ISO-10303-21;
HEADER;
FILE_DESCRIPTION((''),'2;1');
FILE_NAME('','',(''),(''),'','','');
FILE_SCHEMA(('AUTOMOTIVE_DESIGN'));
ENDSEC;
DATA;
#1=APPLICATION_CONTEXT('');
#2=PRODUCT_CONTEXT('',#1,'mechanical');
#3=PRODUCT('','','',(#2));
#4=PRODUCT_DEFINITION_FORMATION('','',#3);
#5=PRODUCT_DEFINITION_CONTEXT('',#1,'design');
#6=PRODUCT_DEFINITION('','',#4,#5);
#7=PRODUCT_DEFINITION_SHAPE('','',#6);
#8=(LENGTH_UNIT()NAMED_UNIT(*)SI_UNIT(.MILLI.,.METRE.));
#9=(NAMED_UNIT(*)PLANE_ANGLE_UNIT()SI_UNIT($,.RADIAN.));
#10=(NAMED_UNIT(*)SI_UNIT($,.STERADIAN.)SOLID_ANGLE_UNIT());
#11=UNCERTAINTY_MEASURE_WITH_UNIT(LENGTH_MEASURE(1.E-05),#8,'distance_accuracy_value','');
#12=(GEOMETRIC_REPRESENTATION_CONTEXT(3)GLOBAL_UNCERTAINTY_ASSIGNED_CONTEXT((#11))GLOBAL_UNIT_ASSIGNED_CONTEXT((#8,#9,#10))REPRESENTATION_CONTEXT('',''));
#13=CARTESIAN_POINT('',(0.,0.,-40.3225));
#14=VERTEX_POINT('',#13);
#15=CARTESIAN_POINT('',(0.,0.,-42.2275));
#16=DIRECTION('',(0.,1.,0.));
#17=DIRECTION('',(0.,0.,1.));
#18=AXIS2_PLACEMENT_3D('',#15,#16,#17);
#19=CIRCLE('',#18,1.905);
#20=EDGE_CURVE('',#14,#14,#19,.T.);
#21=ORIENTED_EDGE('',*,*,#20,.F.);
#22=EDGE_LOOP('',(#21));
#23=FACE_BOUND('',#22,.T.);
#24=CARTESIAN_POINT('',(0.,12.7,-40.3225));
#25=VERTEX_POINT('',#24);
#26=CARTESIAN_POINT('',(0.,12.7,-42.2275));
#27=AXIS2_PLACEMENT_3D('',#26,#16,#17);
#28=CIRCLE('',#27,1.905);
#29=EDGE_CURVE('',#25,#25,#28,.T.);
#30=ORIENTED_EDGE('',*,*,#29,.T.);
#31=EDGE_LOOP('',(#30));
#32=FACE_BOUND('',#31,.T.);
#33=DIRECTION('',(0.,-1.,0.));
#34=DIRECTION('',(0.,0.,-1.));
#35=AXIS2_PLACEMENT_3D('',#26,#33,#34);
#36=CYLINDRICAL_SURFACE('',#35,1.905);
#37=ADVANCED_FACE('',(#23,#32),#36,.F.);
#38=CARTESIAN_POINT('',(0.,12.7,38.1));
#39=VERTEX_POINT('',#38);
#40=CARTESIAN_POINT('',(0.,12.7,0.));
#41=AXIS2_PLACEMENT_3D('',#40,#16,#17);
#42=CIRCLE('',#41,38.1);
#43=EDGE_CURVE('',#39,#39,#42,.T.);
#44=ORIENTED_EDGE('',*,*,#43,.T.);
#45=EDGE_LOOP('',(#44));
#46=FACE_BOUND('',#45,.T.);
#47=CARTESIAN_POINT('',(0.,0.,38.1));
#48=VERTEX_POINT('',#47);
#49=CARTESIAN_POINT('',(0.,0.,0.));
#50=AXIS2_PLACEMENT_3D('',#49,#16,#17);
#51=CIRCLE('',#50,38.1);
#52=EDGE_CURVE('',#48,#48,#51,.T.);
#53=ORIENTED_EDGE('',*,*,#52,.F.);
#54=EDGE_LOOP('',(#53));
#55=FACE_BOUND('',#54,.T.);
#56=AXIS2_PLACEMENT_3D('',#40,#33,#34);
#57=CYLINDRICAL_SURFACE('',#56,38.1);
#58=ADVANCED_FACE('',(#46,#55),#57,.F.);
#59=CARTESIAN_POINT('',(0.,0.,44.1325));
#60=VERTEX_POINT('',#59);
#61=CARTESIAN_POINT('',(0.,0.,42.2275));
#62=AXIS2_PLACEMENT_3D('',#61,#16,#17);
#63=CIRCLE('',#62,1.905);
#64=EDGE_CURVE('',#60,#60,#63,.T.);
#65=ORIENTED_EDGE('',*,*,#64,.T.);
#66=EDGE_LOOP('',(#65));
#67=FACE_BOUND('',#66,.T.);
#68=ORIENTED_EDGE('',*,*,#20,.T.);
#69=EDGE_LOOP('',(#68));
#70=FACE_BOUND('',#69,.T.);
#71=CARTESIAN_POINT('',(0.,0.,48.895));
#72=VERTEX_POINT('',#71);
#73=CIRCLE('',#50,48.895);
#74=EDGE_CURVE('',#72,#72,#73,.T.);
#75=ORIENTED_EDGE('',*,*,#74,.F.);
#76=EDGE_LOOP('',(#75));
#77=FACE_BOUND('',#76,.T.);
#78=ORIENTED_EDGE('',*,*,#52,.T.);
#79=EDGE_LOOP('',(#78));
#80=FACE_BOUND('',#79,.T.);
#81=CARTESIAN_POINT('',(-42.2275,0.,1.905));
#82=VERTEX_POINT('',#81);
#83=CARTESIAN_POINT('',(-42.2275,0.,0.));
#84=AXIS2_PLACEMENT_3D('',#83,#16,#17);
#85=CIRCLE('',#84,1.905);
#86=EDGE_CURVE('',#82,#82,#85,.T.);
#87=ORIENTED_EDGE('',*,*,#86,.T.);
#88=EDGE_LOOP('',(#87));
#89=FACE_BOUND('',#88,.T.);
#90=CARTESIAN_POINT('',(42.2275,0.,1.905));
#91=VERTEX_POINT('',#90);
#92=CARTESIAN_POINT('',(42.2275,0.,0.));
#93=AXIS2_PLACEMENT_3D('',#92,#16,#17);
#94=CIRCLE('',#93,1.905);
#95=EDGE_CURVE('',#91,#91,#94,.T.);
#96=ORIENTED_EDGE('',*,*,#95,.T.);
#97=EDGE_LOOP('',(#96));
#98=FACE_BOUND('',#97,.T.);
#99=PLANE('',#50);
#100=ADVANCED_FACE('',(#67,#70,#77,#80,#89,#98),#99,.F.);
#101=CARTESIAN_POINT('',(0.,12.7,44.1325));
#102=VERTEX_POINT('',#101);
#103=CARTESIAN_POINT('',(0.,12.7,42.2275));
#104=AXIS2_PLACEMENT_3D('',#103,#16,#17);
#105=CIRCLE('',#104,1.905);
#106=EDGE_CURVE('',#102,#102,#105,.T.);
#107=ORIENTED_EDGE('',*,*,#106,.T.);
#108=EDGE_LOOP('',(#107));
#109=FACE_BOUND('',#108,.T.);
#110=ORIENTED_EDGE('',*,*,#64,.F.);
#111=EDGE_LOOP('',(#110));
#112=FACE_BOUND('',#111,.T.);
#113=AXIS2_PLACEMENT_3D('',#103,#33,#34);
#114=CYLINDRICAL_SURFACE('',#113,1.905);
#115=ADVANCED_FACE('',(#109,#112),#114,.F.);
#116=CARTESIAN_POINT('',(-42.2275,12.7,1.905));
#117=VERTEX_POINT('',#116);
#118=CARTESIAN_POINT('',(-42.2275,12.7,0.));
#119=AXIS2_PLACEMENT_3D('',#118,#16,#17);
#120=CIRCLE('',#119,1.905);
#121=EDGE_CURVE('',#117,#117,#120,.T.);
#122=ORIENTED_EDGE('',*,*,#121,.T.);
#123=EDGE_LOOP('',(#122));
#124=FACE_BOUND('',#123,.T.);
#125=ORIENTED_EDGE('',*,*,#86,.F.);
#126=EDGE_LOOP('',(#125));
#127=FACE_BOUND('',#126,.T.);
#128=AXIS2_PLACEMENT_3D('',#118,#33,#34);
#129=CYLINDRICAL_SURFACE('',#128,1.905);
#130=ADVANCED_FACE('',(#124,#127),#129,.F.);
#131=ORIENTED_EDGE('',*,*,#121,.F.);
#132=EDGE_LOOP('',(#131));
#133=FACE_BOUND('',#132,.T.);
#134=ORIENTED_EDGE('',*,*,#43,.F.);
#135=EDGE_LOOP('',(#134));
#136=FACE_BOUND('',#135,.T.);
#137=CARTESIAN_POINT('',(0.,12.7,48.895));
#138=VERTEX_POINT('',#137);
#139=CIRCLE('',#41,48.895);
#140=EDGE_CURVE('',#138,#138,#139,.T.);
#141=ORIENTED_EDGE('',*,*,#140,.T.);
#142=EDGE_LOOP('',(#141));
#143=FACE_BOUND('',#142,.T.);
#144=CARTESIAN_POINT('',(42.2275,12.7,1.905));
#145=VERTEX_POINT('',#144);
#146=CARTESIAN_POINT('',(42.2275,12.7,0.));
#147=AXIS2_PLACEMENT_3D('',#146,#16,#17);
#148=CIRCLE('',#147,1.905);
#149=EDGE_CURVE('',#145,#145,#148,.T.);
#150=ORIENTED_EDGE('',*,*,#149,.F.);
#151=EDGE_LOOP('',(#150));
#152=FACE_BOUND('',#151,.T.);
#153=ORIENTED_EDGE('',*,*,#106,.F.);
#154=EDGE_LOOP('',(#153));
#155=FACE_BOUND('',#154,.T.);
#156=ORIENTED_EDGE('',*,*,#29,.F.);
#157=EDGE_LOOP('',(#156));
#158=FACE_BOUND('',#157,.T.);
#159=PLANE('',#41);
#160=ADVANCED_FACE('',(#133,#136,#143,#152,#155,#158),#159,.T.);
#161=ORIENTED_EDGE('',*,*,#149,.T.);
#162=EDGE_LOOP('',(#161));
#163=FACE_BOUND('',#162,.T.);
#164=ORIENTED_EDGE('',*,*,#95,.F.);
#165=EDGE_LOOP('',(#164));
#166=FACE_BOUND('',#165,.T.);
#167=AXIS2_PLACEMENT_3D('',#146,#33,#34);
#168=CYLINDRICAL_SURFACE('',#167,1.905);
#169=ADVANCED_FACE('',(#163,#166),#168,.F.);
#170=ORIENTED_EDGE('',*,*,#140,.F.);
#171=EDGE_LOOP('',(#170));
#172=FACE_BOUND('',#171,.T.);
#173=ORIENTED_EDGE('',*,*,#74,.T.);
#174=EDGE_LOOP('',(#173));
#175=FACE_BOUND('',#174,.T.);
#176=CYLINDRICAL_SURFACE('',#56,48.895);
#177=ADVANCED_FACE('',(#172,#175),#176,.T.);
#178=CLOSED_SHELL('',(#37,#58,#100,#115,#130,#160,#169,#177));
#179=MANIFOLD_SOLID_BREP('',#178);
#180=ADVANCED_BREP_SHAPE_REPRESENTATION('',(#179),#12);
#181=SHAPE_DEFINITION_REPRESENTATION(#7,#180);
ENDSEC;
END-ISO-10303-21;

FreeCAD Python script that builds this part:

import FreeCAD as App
import Part
import Sketcher

V = App.Vector
Q = App.Units.Quantity

doc = App.newDocument("Part")
body = doc.addObject("PartDesign::Body", "Body")

sketch1 = doc.addObject("Sketcher::SketchObject", "Sketch")
body.addObject(sketch1)
sketch1.AttachmentSupport = (doc.XZ_Plane, [""])
sketch1.MapMode = "FlatFace"
sketch1.addGeometry(Part.Circle(V(0, 0, 0), V(0, 0, 1), 48.9), False)
sketch1.addGeometry(Part.Circle(V(0, 42.2, 0), V(0, 0, 1), 1.9), False)
sketch1.addGeometry(Part.Circle(V(-42.2, 0, 0), V(0, 0, 1), 1.9), False)
sketch1.addGeometry(Part.Circle(V(0, 0, 0), V(0, 0, 1), 38.1), False)
sketch1.addGeometry(Part.Circle(V(42.2, 0, 0), V(0, 0, 1), 1.9), False)
sketch1.addGeometry(Part.Circle(V(0, -42.2, 0), V(0, 0, 1), 1.9), False)
sketch1.addConstraint(Sketcher.Constraint("Coincident", 0, 3, -1, 1))
sketch1.addConstraint(Sketcher.Constraint("Coincident", 3, 3, -1, 1))
sketch1.addConstraint(Sketcher.Constraint("Equal", 1, 2))
sketch1.addConstraint(Sketcher.Constraint("Equal", 2, 4))
sketch1.addConstraint(Sketcher.Constraint("Equal", 4, 5))
sketch1.addConstraint(Sketcher.Constraint("Symmetric", 2, 3, 4, 3, -1, 1))
sketch1.addConstraint(Sketcher.Constraint("Symmetric", 1, 3, 5, 3, -1, 1))
sketch1.addConstraint(Sketcher.Constraint("PointOnObject", 1, 3, -2))
sketch1.addConstraint(Sketcher.Constraint("PointOnObject", 2, 3, -1))
sketch1.addConstraint(Sketcher.Constraint("Diameter", 3, Q("3 in")))
sketch1.addConstraint(Sketcher.Constraint("Diameter", 0, Q("3.85 in")))
sketch1.addConstraint(Sketcher.Constraint("Diameter", 1, Q("0.15 in")))
sketch1.addConstraint(Sketcher.Constraint("DistanceX", 2, 3, 4, 3, Q("3.325 in")))
sketch1.addConstraint(Sketcher.Constraint("DistanceY", 5, 3, 1, 3, Q("3.325 in")))
pad1 = doc.addObject("PartDesign::Pad", "Pad")
body.addObject(pad1)
pad1.Profile = sketch1
pad1.Length = Q("0.5 in")
pad1.Reversed = True

doc.recompute()
